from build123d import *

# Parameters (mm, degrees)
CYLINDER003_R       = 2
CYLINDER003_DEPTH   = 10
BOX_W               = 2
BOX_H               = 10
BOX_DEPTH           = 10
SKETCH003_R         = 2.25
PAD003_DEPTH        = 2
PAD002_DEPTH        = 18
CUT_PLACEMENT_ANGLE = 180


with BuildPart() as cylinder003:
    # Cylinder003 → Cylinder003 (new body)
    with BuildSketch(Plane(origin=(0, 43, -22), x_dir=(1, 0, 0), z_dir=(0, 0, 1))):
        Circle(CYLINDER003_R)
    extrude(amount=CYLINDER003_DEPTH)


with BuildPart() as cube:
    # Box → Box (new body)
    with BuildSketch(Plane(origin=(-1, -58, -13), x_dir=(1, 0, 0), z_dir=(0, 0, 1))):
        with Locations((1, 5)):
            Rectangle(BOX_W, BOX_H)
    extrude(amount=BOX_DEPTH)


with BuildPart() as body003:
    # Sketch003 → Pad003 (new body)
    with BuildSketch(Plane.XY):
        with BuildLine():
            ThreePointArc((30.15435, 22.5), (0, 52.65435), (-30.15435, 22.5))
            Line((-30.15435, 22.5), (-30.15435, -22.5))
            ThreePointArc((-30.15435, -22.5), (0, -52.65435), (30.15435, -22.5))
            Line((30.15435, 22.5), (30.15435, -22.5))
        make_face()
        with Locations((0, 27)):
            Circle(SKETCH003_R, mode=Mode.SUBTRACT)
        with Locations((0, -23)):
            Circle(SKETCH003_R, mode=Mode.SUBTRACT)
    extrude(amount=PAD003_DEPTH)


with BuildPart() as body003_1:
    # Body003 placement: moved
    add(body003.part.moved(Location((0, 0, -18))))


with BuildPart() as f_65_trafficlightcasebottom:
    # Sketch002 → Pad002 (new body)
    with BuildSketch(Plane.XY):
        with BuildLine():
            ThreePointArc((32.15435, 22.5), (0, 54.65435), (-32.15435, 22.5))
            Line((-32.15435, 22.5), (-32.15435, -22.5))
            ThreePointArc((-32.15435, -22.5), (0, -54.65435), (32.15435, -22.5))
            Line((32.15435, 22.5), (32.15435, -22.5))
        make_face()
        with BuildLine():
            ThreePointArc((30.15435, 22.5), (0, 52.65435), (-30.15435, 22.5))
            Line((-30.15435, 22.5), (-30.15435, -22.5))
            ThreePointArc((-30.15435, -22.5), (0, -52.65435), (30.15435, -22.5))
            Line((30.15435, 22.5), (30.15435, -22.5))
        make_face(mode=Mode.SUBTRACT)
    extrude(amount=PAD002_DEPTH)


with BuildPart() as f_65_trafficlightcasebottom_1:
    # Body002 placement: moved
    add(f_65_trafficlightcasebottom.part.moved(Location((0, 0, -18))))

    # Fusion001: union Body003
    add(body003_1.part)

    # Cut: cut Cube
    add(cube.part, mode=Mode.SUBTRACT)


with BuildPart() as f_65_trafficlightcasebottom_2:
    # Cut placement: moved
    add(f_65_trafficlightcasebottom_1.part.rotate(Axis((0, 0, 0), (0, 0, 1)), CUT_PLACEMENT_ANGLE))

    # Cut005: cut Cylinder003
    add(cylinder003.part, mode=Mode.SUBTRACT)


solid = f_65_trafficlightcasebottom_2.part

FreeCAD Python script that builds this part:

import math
import FreeCAD as App
import Part
import Sketcher

V = App.Vector
Q = App.Units.Quantity

doc = App.newDocument("Part")
params = doc.addObject("Spreadsheet::Sheet", "Params")
for row, (alias, value) in enumerate([
    ("sketch1_diameter", "4 mm"),
    ("pad1_length", "10 mm"),
    ("sketch2_width", "2 mm"),
    ("sketch2_height", "10 mm"),
    ("pad2_length", "10 mm"),
    ("sketch3_diameter", "4.5 mm"),
    ("sketch3_height", "45 mm"),
    ("pad3_length", "2 mm"),
    ("sketch4_height", "45 mm"),
    ("pad4_length", "18 mm"),
], start=1):
    params.set(f"A{row}", alias)
    params.set(f"B{row}", "=" + value)
    params.setAlias(f"B{row}", alias)

body = doc.addObject("PartDesign::Body", "Body")

# Sketch on XY plane
sketch1 = body.newObject("Sketcher::SketchObject", "Sketch")
sketch1.AttachmentSupport = (doc.getObject("XY_Plane"), [""])
sketch1.MapMode = "FlatFace"
sketch1.AttachmentOffset = App.Placement(V(0, 0, -22), App.Rotation())
sketch1.addGeometry(Part.Circle(V(0, 43, 0), V(0, 0, 1), 2), False)
sketch1.addConstraint([
    Sketcher.Constraint("PointOnObject", 0, 3, -2),
    Sketcher.Constraint("Diameter", 0, Q("4 mm")),
    Sketcher.Constraint("DistanceY", -1, 1, 0, 3, Q("43 mm")),
])
sketch1.setExpression("Constraints[1]", "Params.sketch1_diameter")
pad1 = body.newObject("PartDesign::Pad", "Pad")
pad1.Profile = sketch1
pad1.setExpression("Length", "Params.pad1_length")
body2 = doc.addObject("PartDesign::Body", "Body001")

# Sketch on XY plane
sketch2 = body2.newObject("Sketcher::SketchObject", "Sketch001")
sketch2.AttachmentSupport = (doc.getObject("XY_Plane001"), [""])
sketch2.MapMode = "FlatFace"
sketch2.AttachmentOffset = App.Placement(V(0, 0, -13), App.Rotation())
sketch2.addGeometry([
    Part.LineSegment(V(-1, -48, 0), V(-1, -58, 0)),
    Part.LineSegment(V(-1, -58, 0), V(1, -58, 0)),
    Part.LineSegment(V(1, -58, 0), V(1, -48, 0)),
    Part.LineSegment(V(1, -48, 0), V(-1, -48, 0)),
], False)
sketch2.addConstraint([
    Sketcher.Constraint("Coincident", 0, 2, 1, 1),
    Sketcher.Constraint("Coincident", 1, 2, 2, 1),
    Sketcher.Constraint("Coincident", 2, 2, 3, 1),
    Sketcher.Constraint("Coincident", 3, 2, 0, 1),
    Sketcher.Constraint("Vertical", 0),
    Sketcher.Constraint("Horizontal", 1),
    Sketcher.Constraint("Vertical", 2),
    Sketcher.Constraint("Horizontal", 3),
    Sketcher.Constraint("DistanceX", 1, 1, 1, 2, Q("2 mm")),
    Sketcher.Constraint("DistanceY", 0, 2, 0, 1, Q("10 mm")),
    Sketcher.Constraint("DistanceX", 0, 2, -1, 1, Q("1 mm")),
    Sketcher.Constraint("DistanceY", 0, 2, -1, 1, Q("58 mm")),
])
sketch2.setExpression("Constraints[8]", "Params.sketch2_width")
sketch2.setExpression("Constraints[9]", "Params.sketch2_height")
pad2 = body2.newObject("PartDesign::Pad", "Pad001")
pad2.Profile = sketch2
pad2.setExpression("Length", "Params.pad2_length")
body3 = doc.addObject("PartDesign::Body", "Body002")

# Sketch on XY plane
sketch3 = body3.newObject("Sketcher::SketchObject", "Sketch002")
sketch3.AttachmentSupport = (doc.getObject("XY_Plane002"), [""])
sketch3.MapMode = "FlatFace"
sketch3.addGeometry([
    Part.ArcOfCircle(Part.Circle(V(0, 22.5, 0), V(0, 0, 1), 30.2), math.radians(0), math.radians(180)),  # 0
    Part.LineSegment(V(-30.2, 22.5, 0), V(-30.2, -22.5, 0)),  # 1
    Part.ArcOfCircle(Part.Circle(V(0, -22.5, 0), V(0, 0, 1), 30.2), math.radians(180), math.radians(360)),  # 2
    Part.LineSegment(V(30.2, -22.5, 0), V(30.2, 22.5, 0)),  # 3
    Part.Circle(V(0, -23, 0), V(0, 0, 1), 2.2),  # 4
    Part.Circle(V(0, 27, 0), V(0, 0, 1), 2.2),  # 5
], False)
sketch3.addConstraint([
    Sketcher.Constraint("Tangent", 0, 2, 1, 1),
    Sketcher.Constraint("Tangent", 1, 2, 2, 1),
    Sketcher.Constraint("Tangent", 2, 2, 3, 1),
    Sketcher.Constraint("Tangent", 3, 2, 0, 1),
    Sketcher.Constraint("Vertical", 1),
    Sketcher.Constraint("Vertical", 3),
    Sketcher.Constraint("Equal", 4, 5),
    Sketcher.Constraint("Symmetric", 0, 3, 2, 3, -1, 1),
    Sketcher.Constraint("PointOnObject", 4, 3, -2),
    Sketcher.Constraint("PointOnObject", 5, 3, -2),
    Sketcher.Constraint("Diameter", 4, Q("4.5 mm")),
    Sketcher.Constraint("DistanceY", 1, 2, 1, 1, Q("45 mm")),
    Sketcher.Constraint("DistanceY", 4, 3, -1, 1, Q("23 mm")),
    Sketcher.Constraint("DistanceY", -1, 1, 5, 3, Q("27 mm")),
    Sketcher.Constraint("Radius", 0, Q("30.15435 mm")),
])
sketch3.setExpression("Constraints[10]", "Params.sketch3_diameter")
sketch3.setExpression("Constraints[11]", "Params.sketch3_height")
pad3 = body3.newObject("PartDesign::Pad", "Pad002")
pad3.Profile = sketch3
pad3.setExpression("Length", "Params.pad3_length")
body4 = doc.addObject("PartDesign::Body", "Body003")
doc.recompute()

body3.Placement = App.Placement(V(0, 0, -18), App.Rotation(V(0, 0, 1), 0))
boolean = body4.newObject("PartDesign::Boolean", "Boolean")
boolean.Type = "Fuse"
boolean.addObjects([body3])
body5 = doc.addObject("PartDesign::Body", "Body004")

# Sketch on XY plane
sketch4 = body5.newObject("Sketcher::SketchObject", "Sketch003")
sketch4.AttachmentSupport = (doc.getObject("XY_Plane004"), [""])
sketch4.MapMode = "FlatFace"
sketch4.addGeometry([
    Part.ArcOfCircle(Part.Circle(V(0, 22, 0), V(0, 0, 1), 32), math.radians(0), math.radians(180)),  # 0
    Part.LineSegment(V(-32, 22, 0), V(-32, -22, 0)),  # 1
    Part.ArcOfCircle(Part.Circle(V(0, -22, 0), V(0, 0, 1), 32), math.radians(180), math.radians(360)),  # 2
    Part.LineSegment(V(32, -22, 0), V(32, 22, 0)),  # 3
    Part.ArcOfCircle(Part.Circle(V(0, 22, 0), V(0, 0, 1), 30), math.radians(0), math.radians(180)),  # 4
    Part.LineSegment(V(30, 22, 0), V(30, -22, 0)),  # 5
    Part.ArcOfCircle(Part.Circle(V(0, -22, 0), V(0, 0, 1), 30), math.radians(180), math.radians(360)),  # 6
    Part.LineSegment(V(-30, -22, 0), V(-30, 22, 0)),  # 7
], False)
sketch4.addConstraint([
    Sketcher.Constraint("Tangent", 0, 2, 1, 1),
    Sketcher.Constraint("Tangent", 1, 2, 2, 1),
    Sketcher.Constraint("Tangent", 2, 2, 3, 1),
    Sketcher.Constraint("Tangent", 3, 2, 0, 1),
    Sketcher.Constraint("Tangent", 4, 1, 5, 1),
    Sketcher.Constraint("Tangent", 5, 2, 6, 2),
    Sketcher.Constraint("Tangent", 6, 1, 7, 1),
    Sketcher.Constraint("Tangent", 7, 2, 4, 2),
    Sketcher.Constraint("Vertical", 1),
    Sketcher.Constraint("Vertical", 3),
    Sketcher.Constraint("Vertical", 5),
    Sketcher.Constraint("Vertical", 7),
    Sketcher.Constraint("Coincident", 4, 3, 0, 3),
    Sketcher.Constraint("Symmetric", 0, 3, 2, 3, -1, 1),
    Sketcher.Constraint("Horizontal", 6, 3, 1, 2),
    Sketcher.Constraint("DistanceY", 1, 2, 1, 1, Q("45 mm")),
    Sketcher.Constraint("DistanceX", 4, 1, 3, 2, Q("2 mm")),
    Sketcher.Constraint("Radius", 0, Q("32.15435 mm")),
])
sketch4.setExpression("Constraints[15]", "Params.sketch4_height")
pad4 = body5.newObject("PartDesign::Pad", "Pad003")
pad4.Profile = sketch4
pad4.setExpression("Length", "Params.pad4_length")
body6 = doc.addObject("PartDesign::Body", "Body005")
doc.recompute()

body5.Placement = App.Placement(V(0, 0, -18), App.Rotation(V(0, 0, 1), 0))
boolean2 = body6.newObject("PartDesign::Boolean", "Boolean001")
boolean2.Type = "Fuse"
boolean2.addObjects([body5])
doc.recompute()

boolean3 = body6.newObject("PartDesign::Boolean", "Boolean002")
boolean3.Type = "Fuse"
boolean3.addObjects([body4])
doc.recompute()

boolean4 = body6.newObject("PartDesign::Boolean", "Boolean003")
boolean4.Type = "Cut"
boolean4.addObjects([body2])
body7 = doc.addObject("PartDesign::Body", "Body006")
doc.recompute()

body6.Placement = App.Placement(V(0, 0, 0), App.Rotation(V(0, 0, 1), 180))
boolean5 = body7.newObject("PartDesign::Boolean", "Boolean004")
boolean5.Type = "Fuse"
boolean5.addObjects([body6])
doc.recompute()

boolean6 = body7.newObject("PartDesign::Boolean", "Boolean005")
boolean6.Type = "Cut"
boolean6.addObjects([body])

doc.recompute()
